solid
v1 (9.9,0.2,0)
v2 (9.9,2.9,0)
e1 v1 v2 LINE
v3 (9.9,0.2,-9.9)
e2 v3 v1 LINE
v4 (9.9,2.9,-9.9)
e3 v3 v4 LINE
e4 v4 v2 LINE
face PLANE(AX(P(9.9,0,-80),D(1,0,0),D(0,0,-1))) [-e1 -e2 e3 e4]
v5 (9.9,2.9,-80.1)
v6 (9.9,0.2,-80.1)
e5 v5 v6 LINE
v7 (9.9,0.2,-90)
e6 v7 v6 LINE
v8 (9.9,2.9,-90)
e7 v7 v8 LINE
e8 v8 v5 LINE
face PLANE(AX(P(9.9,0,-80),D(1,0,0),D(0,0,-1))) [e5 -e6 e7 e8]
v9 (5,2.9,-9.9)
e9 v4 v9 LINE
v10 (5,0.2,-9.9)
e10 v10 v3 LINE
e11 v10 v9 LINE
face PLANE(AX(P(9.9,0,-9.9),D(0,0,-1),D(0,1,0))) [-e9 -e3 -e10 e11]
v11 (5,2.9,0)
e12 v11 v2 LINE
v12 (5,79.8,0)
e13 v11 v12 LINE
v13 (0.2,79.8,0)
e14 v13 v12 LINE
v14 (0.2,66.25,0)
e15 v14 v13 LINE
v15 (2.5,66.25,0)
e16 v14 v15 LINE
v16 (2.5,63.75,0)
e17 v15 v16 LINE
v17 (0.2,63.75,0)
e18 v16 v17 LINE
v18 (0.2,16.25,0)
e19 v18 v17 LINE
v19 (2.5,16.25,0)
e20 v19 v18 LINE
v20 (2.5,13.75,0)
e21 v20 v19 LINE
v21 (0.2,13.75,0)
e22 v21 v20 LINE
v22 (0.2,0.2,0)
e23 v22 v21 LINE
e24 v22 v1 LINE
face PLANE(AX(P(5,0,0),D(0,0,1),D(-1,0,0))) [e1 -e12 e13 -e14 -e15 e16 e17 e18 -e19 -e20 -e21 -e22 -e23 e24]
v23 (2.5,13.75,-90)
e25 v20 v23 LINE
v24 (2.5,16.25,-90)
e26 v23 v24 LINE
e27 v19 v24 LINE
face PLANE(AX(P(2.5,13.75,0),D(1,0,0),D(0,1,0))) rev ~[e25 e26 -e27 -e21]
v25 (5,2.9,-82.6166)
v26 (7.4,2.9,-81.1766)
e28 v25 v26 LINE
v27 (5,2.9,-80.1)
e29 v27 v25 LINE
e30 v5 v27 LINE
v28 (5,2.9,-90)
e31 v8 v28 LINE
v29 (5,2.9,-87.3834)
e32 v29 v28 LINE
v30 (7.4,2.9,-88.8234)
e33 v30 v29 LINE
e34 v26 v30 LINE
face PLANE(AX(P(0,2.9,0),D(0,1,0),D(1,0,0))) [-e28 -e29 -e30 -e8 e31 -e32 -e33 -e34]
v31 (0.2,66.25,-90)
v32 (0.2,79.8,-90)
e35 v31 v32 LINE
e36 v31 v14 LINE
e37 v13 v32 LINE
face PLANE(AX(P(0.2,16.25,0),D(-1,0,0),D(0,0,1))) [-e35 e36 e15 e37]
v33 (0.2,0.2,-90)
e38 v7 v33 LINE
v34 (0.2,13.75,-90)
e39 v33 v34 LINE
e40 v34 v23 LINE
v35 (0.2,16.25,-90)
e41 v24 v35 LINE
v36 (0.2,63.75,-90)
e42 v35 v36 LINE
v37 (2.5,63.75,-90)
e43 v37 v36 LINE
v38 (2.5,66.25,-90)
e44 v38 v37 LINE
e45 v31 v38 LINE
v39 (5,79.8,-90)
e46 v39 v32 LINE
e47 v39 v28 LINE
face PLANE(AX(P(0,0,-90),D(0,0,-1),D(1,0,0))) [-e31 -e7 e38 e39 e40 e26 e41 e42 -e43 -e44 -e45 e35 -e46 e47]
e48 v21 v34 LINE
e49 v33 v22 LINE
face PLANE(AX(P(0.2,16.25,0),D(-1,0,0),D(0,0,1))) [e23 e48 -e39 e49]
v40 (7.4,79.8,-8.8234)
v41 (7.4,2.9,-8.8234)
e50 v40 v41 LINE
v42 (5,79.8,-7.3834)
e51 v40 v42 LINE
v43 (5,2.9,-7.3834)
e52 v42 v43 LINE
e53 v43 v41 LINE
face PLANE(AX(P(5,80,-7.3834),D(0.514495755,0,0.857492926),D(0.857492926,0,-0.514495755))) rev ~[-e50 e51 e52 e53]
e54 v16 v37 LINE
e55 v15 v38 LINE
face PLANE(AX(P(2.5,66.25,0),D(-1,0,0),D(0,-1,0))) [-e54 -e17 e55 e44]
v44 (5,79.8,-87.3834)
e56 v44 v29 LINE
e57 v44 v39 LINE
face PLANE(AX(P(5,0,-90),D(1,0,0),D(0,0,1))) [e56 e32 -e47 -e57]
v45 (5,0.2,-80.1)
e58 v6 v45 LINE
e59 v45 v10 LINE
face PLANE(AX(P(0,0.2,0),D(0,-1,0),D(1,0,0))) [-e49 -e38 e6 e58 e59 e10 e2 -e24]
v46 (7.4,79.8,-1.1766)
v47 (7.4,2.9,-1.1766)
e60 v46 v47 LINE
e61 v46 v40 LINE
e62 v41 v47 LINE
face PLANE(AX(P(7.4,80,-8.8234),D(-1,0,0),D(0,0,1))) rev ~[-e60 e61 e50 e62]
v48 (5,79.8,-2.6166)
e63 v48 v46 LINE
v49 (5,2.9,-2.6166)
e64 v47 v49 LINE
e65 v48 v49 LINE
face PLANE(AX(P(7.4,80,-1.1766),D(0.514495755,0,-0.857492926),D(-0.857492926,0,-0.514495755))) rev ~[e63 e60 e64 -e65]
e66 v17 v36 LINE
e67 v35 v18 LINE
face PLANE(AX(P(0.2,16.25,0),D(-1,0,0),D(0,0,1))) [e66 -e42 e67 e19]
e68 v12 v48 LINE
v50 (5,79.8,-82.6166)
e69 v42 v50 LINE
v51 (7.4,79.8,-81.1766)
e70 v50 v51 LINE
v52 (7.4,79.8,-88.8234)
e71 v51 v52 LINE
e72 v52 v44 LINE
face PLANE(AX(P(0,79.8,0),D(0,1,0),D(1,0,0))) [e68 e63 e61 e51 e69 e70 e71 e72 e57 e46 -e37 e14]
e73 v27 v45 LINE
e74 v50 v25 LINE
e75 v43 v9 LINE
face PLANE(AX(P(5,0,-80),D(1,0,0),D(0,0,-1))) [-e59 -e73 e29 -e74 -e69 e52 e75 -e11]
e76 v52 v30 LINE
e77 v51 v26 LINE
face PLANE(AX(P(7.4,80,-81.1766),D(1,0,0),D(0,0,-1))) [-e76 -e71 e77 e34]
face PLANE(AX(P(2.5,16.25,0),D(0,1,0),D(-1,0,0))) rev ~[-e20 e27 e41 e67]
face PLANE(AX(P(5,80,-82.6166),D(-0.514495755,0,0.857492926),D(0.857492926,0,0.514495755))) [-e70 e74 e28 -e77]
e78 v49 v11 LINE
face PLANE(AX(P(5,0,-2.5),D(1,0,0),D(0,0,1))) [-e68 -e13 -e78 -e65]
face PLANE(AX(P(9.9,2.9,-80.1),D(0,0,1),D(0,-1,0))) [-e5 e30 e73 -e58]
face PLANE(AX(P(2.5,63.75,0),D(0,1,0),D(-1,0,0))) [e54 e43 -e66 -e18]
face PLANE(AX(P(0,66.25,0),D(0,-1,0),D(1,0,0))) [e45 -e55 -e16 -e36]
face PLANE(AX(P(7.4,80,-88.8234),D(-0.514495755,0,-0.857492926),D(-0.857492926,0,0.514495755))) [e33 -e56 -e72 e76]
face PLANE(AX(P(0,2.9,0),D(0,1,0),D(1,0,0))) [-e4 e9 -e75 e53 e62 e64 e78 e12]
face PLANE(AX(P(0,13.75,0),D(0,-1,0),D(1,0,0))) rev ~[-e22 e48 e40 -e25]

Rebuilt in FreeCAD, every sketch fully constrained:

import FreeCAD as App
import Part
import Sketcher

V = App.Vector


def add_polygon(sketch, points):
    """Adds a closed chain of lines whose ends are joined by coincident constraints."""
    first, n = sketch.GeometryCount, len(points)
    for a, b in zip(points, points[1:] + points[:1]):
        sketch.addGeometry(Part.LineSegment(App.Vector(*a, 0), App.Vector(*b, 0)), False)
    for i in range(n):
        sketch.addConstraint(Sketcher.Constraint("Coincident", first + i, 2, first + (i + 1) % n, 1))

doc = App.newDocument("Part")
body = doc.addObject("PartDesign::Body", "Body")
body.AllowCompound = True

# Sketch on XZ plane
sketch1 = body.newObject("Sketcher::SketchObject", "Sketch")
sketch1.AttachmentSupport = (doc.getObject("XZ_Plane"), [""])
sketch1.MapMode = "FlatFace"
add_polygon(sketch1, [(0, -10), (0, 0), (10, 0), (10, -10)])  # lines 0-3
add_polygon(sketch1, [(0, -90), (0, -80), (10, -80), (10, -90)])  # lines 4-7
sketch1.addConstraint([
    Sketcher.Constraint("Vertical", 0),
    Sketcher.Constraint("Horizontal", 1),
    Sketcher.Constraint("Vertical", 2),
    Sketcher.Constraint("Horizontal", 3),
    Sketcher.Constraint("Vertical", 4),
    Sketcher.Constraint("Horizontal", 5),
    Sketcher.Constraint("Vertical", 6),
    Sketcher.Constraint("Horizontal", 7),
    Sketcher.Constraint("Coincident", 0, 2, -1, 1),
    Sketcher.Constraint("PointOnObject", 4, 2, -2),
    Sketcher.Constraint("Vertical", 2, 2, 5, 2),
    Sketcher.Constraint("Equal", 7, 0),
    Sketcher.Constraint("Equal", 2, 4),
    Sketcher.Constraint("DistanceX", 1, 1, 1, 2, 10.0),
    Sketcher.Constraint("DistanceY", 6, 2, -1, 1, 90.0),
])
pad1 = body.newObject("PartDesign::Pad", "Pad")
pad1.Profile = sketch1
pad1.Length = 3
pad1.Reversed = True

# Sketch on XZ plane
sketch2 = body.newObject("Sketcher::SketchObject", "Sketch001")
sketch2.AttachmentSupport = (doc.getObject("XZ_Plane"), [""])
sketch2.MapMode = "FlatFace"
add_polygon(sketch2, [(0, 0), (5, 0), (5, -2.5), (7.5, -1), (7.5, -9), (5, -7.5), (5, -82.5), (7.5, -81), (7.5, -89), (5, -87.5), (5, -90), (0, -90)])  # lines 0-11
sketch2.addConstraint([
    Sketcher.Constraint("Horizontal", 0),
    Sketcher.Constraint("Vertical", 1),
    Sketcher.Constraint("Vertical", 3),
    Sketcher.Constraint("Vertical", 5),
    Sketcher.Constraint("Vertical", 7),
    Sketcher.Constraint("Vertical", 9),
    Sketcher.Constraint("Horizontal", 10),
    Sketcher.Constraint("Vertical", 11),
    Sketcher.Constraint("Coincident", 11, 2, -1, 1),
    Sketcher.Constraint("Parallel", 2, 6),
    Sketcher.Constraint("Parallel", 4, 8),
    Sketcher.Constraint("Vertical", 1, 2, 4, 2),
    Sketcher.Constraint("Vertical", 3, 2, 6, 2),
    Sketcher.Constraint("Vertical", 5, 2, 8, 2),
    Sketcher.Constraint("Equal", 3, 7),
    Sketcher.Constraint("Equal", 1, 9),
    Sketcher.Constraint("Equal", 2, 4),
    Sketcher.Constraint("DistanceX", 0, 1, 0, 2, 5.0),
    Sketcher.Constraint("DistanceY", 3, 2, 3, 1, 8.0),
    Sketcher.Constraint("DistanceY", 11, 1, 11, 2, 90.0),
    Sketcher.Constraint("DistanceY", 1, 2, 1, 1, 2.5),
    Sketcher.Constraint("DistanceY", 4, 2, 1, 2, 5.0),
    Sketcher.Constraint("DistanceX", 0, 2, 2, 2, 2.5),
])
pad2 = body.newObject("PartDesign::Pad", "Pad001")
pad2.Profile = sketch2
pad2.Length = 80
pad2.Reversed = True

# Sketch on XY plane
sketch3 = body.newObject("Sketcher::SketchObject", "Sketch002")
sketch3.AttachmentSupport = (doc.getObject("XY_Plane"), [""])
sketch3.MapMode = "FlatFace"
add_polygon(sketch3, [(0, 66.2), (0, 63.8), (2.5, 63.8), (2.5, 66.2)])  # lines 0-3
add_polygon(sketch3, [(0, 16.2), (0, 13.8), (2.5, 13.8), (2.5, 16.2)])  # lines 4-7
sketch3.addConstraint([
    Sketcher.Constraint("Vertical", 0),
    Sketcher.Constraint("Horizontal", 1),
    Sketcher.Constraint("Vertical", 2),
    Sketcher.Constraint("Horizontal", 3),
    Sketcher.Constraint("Vertical", 4),
    Sketcher.Constraint("Horizontal", 5),
    Sketcher.Constraint("Vertical", 6),
    Sketcher.Constraint("Horizontal", 7),
    Sketcher.Constraint("PointOnObject", 0, 2, -2),
    Sketcher.Constraint("PointOnObject", 4, 2, -2),
    Sketcher.Constraint("Vertical", 2, 2, 5, 2),
    Sketcher.Constraint("Equal", 7, 0),
    Sketcher.Constraint("Equal", 2, 4),
    Sketcher.Constraint("DistanceX", 1, 1, 1, 2, 2.5),
    Sketcher.Constraint("DistanceY", 4, 2, 0, 2, 50.0),
    Sketcher.Constraint("DistanceY", -1, 1, 0, 2, 63.75),
])
pocket1 = body.newObject("PartDesign::Pocket", "Pocket")
pocket1.Profile = sketch3
pocket1.Length = 90

# Sketch on XZ plane
sketch4 = body.newObject("Sketcher::SketchObject", "Sketch003")
sketch4.AttachmentSupport = (doc.getObject("XZ_Plane"), [""])
sketch4.MapMode = "FlatFace"
sketch4.AttachmentOffset = App.Placement(V(0, 0, -3), App.Rotation())
add_polygon(sketch4, [(7.5, -81), (5, -82.5), (5, -80), (10, -80), (10, -90), (5, -90), (5, -87.5), (7.5, -89)])  # lines 0-7
add_polygon(sketch4, [(10, -10), (5, -10), (5, -7.5), (7.5, -9), (7.5, -1), (5, -2.5), (5, 0), (10, 0)])  # lines 8-15
sketch4.addConstraint([
    Sketcher.Constraint("Vertical", 1),
    Sketcher.Constraint("Horizontal", 2),
    Sketcher.Constraint("Vertical", 3),
    Sketcher.Constraint("Horizontal", 4),
    Sketcher.Constraint("Vertical", 5),
    Sketcher.Constraint("Vertical", 7),
    Sketcher.Constraint("Horizontal", 8),
    Sketcher.Constraint("Vertical", 9),
    Sketcher.Constraint("Vertical", 11),
    Sketcher.Constraint("Vertical", 13),
    Sketcher.Constraint("Horizontal", 14),
    Sketcher.Constraint("Vertical", 15),
    Sketcher.Constraint("PointOnObject", 13, 2, -1),
    Sketcher.Constraint("Parallel", 6, 10),
    Sketcher.Constraint("Parallel", 0, 12),
    Sketcher.Constraint("Vertical", 1, 2, 4, 2),
    Sketcher.Constraint("Vertical", 5, 2, 8, 2),
    Sketcher.Constraint("Vertical", 7, 2, 10, 2),
    Sketcher.Constraint("Vertical", 9, 2, 12, 2),
    Sketcher.Constraint("Vertical", 3, 2, 14, 2),
    Sketcher.Constraint("Equal", 1, 5),
    Sketcher.Constraint("Equal", 5, 9),
    Sketcher.Constraint("Equal", 7, 11),
    Sketcher.Constraint("Equal", 9, 13),
    Sketcher.Constraint("Equal", 0, 6),
    Sketcher.Constraint("DistanceX", 2, 1, 2, 2, 5.0),
    Sketcher.Constraint("DistanceY", 3, 2, 3, 1, 10.0),
    Sketcher.Constraint("DistanceY", 7, 1, 7, 2, 8.0),
    Sketcher.Constraint("DistanceY", 1, 1, 1, 2, 2.5),
    Sketcher.Constraint("DistanceX", -1, 1, 0, 2, 5.0),
    Sketcher.Constraint("DistanceY", 1, 2, -1, 1, 80.0),
    Sketcher.Constraint("DistanceX", -1, 1, 6, 2, 7.5),
])
pocket2 = body.newObject("PartDesign::Pocket", "Pocket001")
pocket2.Profile = sketch4
pocket2.Length = 0.1
pocket2.Reversed = True

# Sketch on XZ plane
sketch5 = body.newObject("Sketcher::SketchObject", "Sketch004")
sketch5.AttachmentSupport = (doc.getObject("XZ_Plane"), [""])
sketch5.MapMode = "FlatFace"
sketch5.AttachmentOffset = App.Placement(V(0, 0, -80), App.Rotation())
add_polygon(sketch5, [(7.5, -81), (7.5, -89), (5, -87.5), (5, -87.38), (7.4, -88.82), (7.4, -81.18), (5, -82.62), (5, -82.5)])  # lines 0-7
add_polygon(sketch5, [(7.5, -9), (5, -7.5), (5, -7.38), (7.4, -8.82), (7.4, -1.18), (5, -2.62), (5, -2.5), (7.5, -1)])  # lines 8-15
sketch5.addConstraint([
    Sketcher.Constraint("Vertical", 0),
    Sketcher.Constraint("Vertical", 2),
    Sketcher.Constraint("Vertical", 4),
    Sketcher.Constraint("Vertical", 6),
    Sketcher.Constraint("Vertical", 9),
    Sketcher.Constraint("Vertical", 11),
    Sketcher.Constraint("Vertical", 13),
    Sketcher.Constraint("Vertical", 15),
    Sketcher.Constraint("Parallel", 1, 3),
    Sketcher.Constraint("Parallel", 5, 7),
    Sketcher.Constraint("Parallel", 3, 8),
    Sketcher.Constraint("Parallel", 8, 10),
    Sketcher.Constraint("Parallel", 7, 12),
    Sketcher.Constraint("Parallel", 12, 14),
    Sketcher.Constraint("Vertical", 2, 2, 5, 2),
    Sketcher.Constraint("Vertical", 6, 2, 8, 2),
    Sketcher.Constraint("Vertical", 4, 2, 10, 2),
    Sketcher.Constraint("Vertical", 9, 2, 12, 2),
    Sketcher.Constraint("Vertical", 7, 2, 14, 2),
    Sketcher.Constraint("Equal", 2, 6),
    Sketcher.Constraint("Equal", 6, 9),
    Sketcher.Constraint("Equal", 4, 11),
    Sketcher.Constraint("Equal", 9, 13),
    Sketcher.Constraint("Equal", 3, 5),
    Sketcher.Constraint("DistanceX", 3, 2, 0, 2, 0.1),
    Sketcher.Constraint("DistanceY", 0, 2, 0, 1, 8.0),
    Sketcher.Constraint("DistanceY", 0, 2, -1, 1, 89.0),
    Sketcher.Constraint("DistanceX", -1, 1, 1, 2, 5.0),
    Sketcher.Constraint("DistanceY", 14, 2, -1, 1, 1.0),
    Sketcher.Constraint("DistanceY", 1, 2, 6, 2, 5.0),
    Sketcher.Constraint("DistanceX", -1, 1, 0, 2, 7.5),
    Sketcher.Constraint("DistanceY", 2, 1, 2, 2, 0.1166),
])
pocket3 = body.newObject("PartDesign::Pocket", "Pocket002")
pocket3.Profile = sketch5
pocket3.Length = 77.1
pocket3.Reversed = True

# Sketch on YZ plane
sketch6 = body.newObject("Sketcher::SketchObject", "Sketch005")
sketch6.AttachmentSupport = (doc.getObject("YZ_Plane"), [""])
sketch6.MapMode = "FlatFace"
sketch6.AttachmentOffset = App.Placement(V(0, 0, 10), App.Rotation())
add_polygon(sketch6, [(0, -10), (2.9, -10), (2.9, 0), (0, 0)])  # lines 0-3
add_polygon(sketch6, [(0, -90), (2.9, -90), (2.9, -80), (0, -80)])  # lines 4-7
sketch6.addConstraint([
    Sketcher.Constraint("Horizontal", 0),
    Sketcher.Constraint("Vertical", 1),
    Sketcher.Constraint("Horizontal", 2),
    Sketcher.Constraint("Vertical", 3),
    Sketcher.Constraint("Horizontal", 4),
    Sketcher.Constraint("Vertical", 5),
    Sketcher.Constraint("Horizontal", 6),
    Sketcher.Constraint("Vertical", 7),
    Sketcher.Constraint("Coincident", 2, 2, -1, 1),
    Sketcher.Constraint("PointOnObject", 6, 2, -2),
    Sketcher.Constraint("Vertical", 1, 2, 4, 2),
    Sketcher.Constraint("Equal", 3, 5),
    Sketcher.Constraint("DistanceY", 1, 1, 1, 2, 10.0),
    Sketcher.Constraint("DistanceX", 0, 1, 0, 2, 2.9),
    Sketcher.Constraint("DistanceY", 4, 2, -1, 1, 90.0),
])
pocket4 = body.newObject("PartDesign::Pocket", "Pocket003")
pocket4.Profile = sketch6
pocket4.Length = 0.1

# Sketch on YZ plane
sketch7 = body.newObject("Sketcher::SketchObject", "Sketch006")
sketch7.AttachmentSupport = (doc.getObject("YZ_Plane"), [""])
sketch7.MapMode = "FlatFace"
sketch7.AttachmentOffset = App.Placement(V(0, 0, 9.9), App.Rotation())
add_polygon(sketch7, [(0, -9.9), (0, -80.1), (2.9, -80.1), (2.9, -9.9)])  # lines 0-3
sketch7.addConstraint([
    Sketcher.Constraint("Vertical", 0),
    Sketcher.Constraint("Horizontal", 1),
    Sketcher.Constraint("Vertical", 2),
    Sketcher.Constraint("Horizontal", 3),
    Sketcher.Constraint("PointOnObject", 0, 2, -2),
    Sketcher.Constraint("DistanceX", 1, 1, 1, 2, 2.9),
    Sketcher.Constraint("DistanceY", 0, 2, 0, 1, 70.2),
    Sketcher.Constraint("DistanceY", 0, 2, -1, 1, 80.1),
])
pocket5 = body.newObject("PartDesign::Pocket", "Pocket004")
pocket5.Profile = sketch7
pocket5.Length = 4.9

# Sketch on XZ plane
sketch8 = body.newObject("Sketcher::SketchObject", "Sketch007")
sketch8.AttachmentSupport = (doc.getObject("XZ_Plane"), [""])
sketch8.MapMode = "FlatFace"
sketch8.AttachmentOffset = App.Placement(V(0, 0, -80), App.Rotation())
add_polygon(sketch8, [(7.4, -88.8), (5, -87.4), (5, -90), (0, -90), (0, 0), (5, 0), (5, -2.6), (7.4, -1.2), (7.4, -8.8), (5, -7.4), (5, -82.6), (7.4, -81.2)])  # lines 0-11
sketch8.addConstraint([
    Sketcher.Constraint("Vertical", 1),
    Sketcher.Constraint("Horizontal", 2),
    Sketcher.Constraint("Vertical", 3),
    Sketcher.Constraint("Horizontal", 4),
    Sketcher.Constraint("Vertical", 5),
    Sketcher.Constraint("Vertical", 7),
    Sketcher.Constraint("Vertical", 9),
    Sketcher.Constraint("Vertical", 11),
    Sketcher.Constraint("Coincident", 3, 2, -1, 1),
    Sketcher.Constraint("Parallel", 0, 8),
    Sketcher.Constraint("Parallel", 6, 10),
    Sketcher.Constraint("Vertical", 1, 2, 4, 2),
    Sketcher.Constraint("Vertical", 5, 2, 8, 2),
    Sketcher.Constraint("Vertical", 7, 2, 10, 2),
    Sketcher.Constraint("Equal", 1, 5),
    Sketcher.Constraint("Equal", 7, 11),
    Sketcher.Constraint("Equal", 0, 6),
    Sketcher.Constraint("DistanceX", 2, 2, 2, 1, 5.0),
    Sketcher.Constraint("DistanceY", 3, 1, 3, 2, 90.0),
    Sketcher.Constraint("DistanceX", -1, 1, 6, 2, 7.4),
    Sketcher.Constraint("DistanceY", 5, 2, 6, 2, 1.44),
    Sketcher.Constraint("DistanceY", 0, 2, 7, 2, 78.56),
    Sketcher.Constraint("DistanceY", 1, 2, 1, 1, 2.6166),
])
pocket6 = body.newObject("PartDesign::Pocket", "Pocket005")
pocket6.Profile = sketch8
pocket6.Length = 0.2
pocket6.Reversed = True

# Sketch on XZ plane
sketch9 = body.newObject("Sketcher::SketchObject", "Sketch008")
sketch9.AttachmentSupport = (doc.getObject("XZ_Plane"), [""])
sketch9.MapMode = "FlatFace"
add_polygon(sketch9, [(5, -80.1), (5, -9.9), (9.9, -9.9), (9.9, 0), (0, 0), (0, -90), (9.9, -90), (9.9, -80.1)])  # lines 0-7
sketch9.addConstraint([
    Sketcher.Constraint("Vertical", 0),
    Sketcher.Constraint("Horizontal", 1),
    Sketcher.Constraint("Vertical", 2),
    Sketcher.Constraint("Horizontal", 3),
    Sketcher.Constraint("Vertical", 4),
    Sketcher.Constraint("Horizontal", 5),
    Sketcher.Constraint("Vertical", 6),
    Sketcher.Constraint("Horizontal", 7),
    Sketcher.Constraint("Coincident", 3, 2, -1, 1),
    Sketcher.Constraint("Vertical", 2, 2, 5, 2),
    Sketcher.Constraint("Equal", 5, 2),
    Sketcher.Constraint("Equal", 2, 6),
    Sketcher.Constraint("DistanceY", 4, 2, 4, 1, 90.0),
    Sketcher.Constraint("DistanceX", 1, 1, 1, 2, 4.9),
    Sketcher.Constraint("DistanceX", 3, 2, 3, 1, 9.9),
])
pocket7 = body.newObject("PartDesign::Pocket", "Pocket006")
pocket7.Profile = sketch9
pocket7.Length = 0.2

# Sketch on YZ plane
sketch10 = body.newObject("Sketcher::SketchObject", "Sketch009")
sketch10.AttachmentSupport = (doc.getObject("YZ_Plane"), [""])
sketch10.MapMode = "FlatFace"
add_polygon(sketch10, [(64, -90), (16, -90), (16, 0), (64, 0)])  # lines 0-3
add_polygon(sketch10, [(66, 0), (80, 0), (80, -90), (66, -90)])  # lines 4-7
add_polygon(sketch10, [(14, -90), (0, -90), (0, 0), (14, 0)])  # lines 8-11
sketch10.addConstraint([
    Sketcher.Constraint("Horizontal", 0),
    Sketcher.Constraint("Vertical", 1),
    Sketcher.Constraint("Horizontal", 2),
    Sketcher.Constraint("Vertical", 3),
    Sketcher.Constraint("Horizontal", 4),
    Sketcher.Constraint("Vertical", 5),
    Sketcher.Constraint("Horizontal", 6),
    Sketcher.Constraint("Vertical", 7),
    Sketcher.Constraint("Horizontal", 8),
    Sketcher.Constraint("Vertical", 9),
    Sketcher.Constraint("Horizontal", 10),
    Sketcher.Constraint("Vertical", 11),
    Sketcher.Constraint("PointOnObject", 1, 2, -1),
    Sketcher.Constraint("PointOnObject", 4, 2, -1),
    Sketcher.Constraint("PointOnObject", 9, 2, -1),
    Sketcher.Constraint("Horizontal", 3, 2, 5, 2),
    Sketcher.Constraint("Horizontal", 6, 2, 8, 2),
    Sketcher.Constraint("Equal", 6, 8),
    Sketcher.Constraint("DistanceY", 1, 1, 1, 2, 90.0),
    Sketcher.Constraint("DistanceX", 0, 2, 0, 1, 47.5),
    Sketcher.Constraint("DistanceX", 0, 2, 6, 2, 50.0),
    Sketcher.Constraint("DistanceX", 10, 2, 2, 2, 50.0),
    Sketcher.Constraint("DistanceX", 4, 1, 4, 2, 13.55),
    Sketcher.Constraint("DistanceX", -1, 1, 4, 2, 79.8),
])
pocket8 = body.newObject("PartDesign::Pocket", "Pocket007")
pocket8.Profile = sketch10
pocket8.Length = 0.2
pocket8.Reversed = True

doc.recompute()
